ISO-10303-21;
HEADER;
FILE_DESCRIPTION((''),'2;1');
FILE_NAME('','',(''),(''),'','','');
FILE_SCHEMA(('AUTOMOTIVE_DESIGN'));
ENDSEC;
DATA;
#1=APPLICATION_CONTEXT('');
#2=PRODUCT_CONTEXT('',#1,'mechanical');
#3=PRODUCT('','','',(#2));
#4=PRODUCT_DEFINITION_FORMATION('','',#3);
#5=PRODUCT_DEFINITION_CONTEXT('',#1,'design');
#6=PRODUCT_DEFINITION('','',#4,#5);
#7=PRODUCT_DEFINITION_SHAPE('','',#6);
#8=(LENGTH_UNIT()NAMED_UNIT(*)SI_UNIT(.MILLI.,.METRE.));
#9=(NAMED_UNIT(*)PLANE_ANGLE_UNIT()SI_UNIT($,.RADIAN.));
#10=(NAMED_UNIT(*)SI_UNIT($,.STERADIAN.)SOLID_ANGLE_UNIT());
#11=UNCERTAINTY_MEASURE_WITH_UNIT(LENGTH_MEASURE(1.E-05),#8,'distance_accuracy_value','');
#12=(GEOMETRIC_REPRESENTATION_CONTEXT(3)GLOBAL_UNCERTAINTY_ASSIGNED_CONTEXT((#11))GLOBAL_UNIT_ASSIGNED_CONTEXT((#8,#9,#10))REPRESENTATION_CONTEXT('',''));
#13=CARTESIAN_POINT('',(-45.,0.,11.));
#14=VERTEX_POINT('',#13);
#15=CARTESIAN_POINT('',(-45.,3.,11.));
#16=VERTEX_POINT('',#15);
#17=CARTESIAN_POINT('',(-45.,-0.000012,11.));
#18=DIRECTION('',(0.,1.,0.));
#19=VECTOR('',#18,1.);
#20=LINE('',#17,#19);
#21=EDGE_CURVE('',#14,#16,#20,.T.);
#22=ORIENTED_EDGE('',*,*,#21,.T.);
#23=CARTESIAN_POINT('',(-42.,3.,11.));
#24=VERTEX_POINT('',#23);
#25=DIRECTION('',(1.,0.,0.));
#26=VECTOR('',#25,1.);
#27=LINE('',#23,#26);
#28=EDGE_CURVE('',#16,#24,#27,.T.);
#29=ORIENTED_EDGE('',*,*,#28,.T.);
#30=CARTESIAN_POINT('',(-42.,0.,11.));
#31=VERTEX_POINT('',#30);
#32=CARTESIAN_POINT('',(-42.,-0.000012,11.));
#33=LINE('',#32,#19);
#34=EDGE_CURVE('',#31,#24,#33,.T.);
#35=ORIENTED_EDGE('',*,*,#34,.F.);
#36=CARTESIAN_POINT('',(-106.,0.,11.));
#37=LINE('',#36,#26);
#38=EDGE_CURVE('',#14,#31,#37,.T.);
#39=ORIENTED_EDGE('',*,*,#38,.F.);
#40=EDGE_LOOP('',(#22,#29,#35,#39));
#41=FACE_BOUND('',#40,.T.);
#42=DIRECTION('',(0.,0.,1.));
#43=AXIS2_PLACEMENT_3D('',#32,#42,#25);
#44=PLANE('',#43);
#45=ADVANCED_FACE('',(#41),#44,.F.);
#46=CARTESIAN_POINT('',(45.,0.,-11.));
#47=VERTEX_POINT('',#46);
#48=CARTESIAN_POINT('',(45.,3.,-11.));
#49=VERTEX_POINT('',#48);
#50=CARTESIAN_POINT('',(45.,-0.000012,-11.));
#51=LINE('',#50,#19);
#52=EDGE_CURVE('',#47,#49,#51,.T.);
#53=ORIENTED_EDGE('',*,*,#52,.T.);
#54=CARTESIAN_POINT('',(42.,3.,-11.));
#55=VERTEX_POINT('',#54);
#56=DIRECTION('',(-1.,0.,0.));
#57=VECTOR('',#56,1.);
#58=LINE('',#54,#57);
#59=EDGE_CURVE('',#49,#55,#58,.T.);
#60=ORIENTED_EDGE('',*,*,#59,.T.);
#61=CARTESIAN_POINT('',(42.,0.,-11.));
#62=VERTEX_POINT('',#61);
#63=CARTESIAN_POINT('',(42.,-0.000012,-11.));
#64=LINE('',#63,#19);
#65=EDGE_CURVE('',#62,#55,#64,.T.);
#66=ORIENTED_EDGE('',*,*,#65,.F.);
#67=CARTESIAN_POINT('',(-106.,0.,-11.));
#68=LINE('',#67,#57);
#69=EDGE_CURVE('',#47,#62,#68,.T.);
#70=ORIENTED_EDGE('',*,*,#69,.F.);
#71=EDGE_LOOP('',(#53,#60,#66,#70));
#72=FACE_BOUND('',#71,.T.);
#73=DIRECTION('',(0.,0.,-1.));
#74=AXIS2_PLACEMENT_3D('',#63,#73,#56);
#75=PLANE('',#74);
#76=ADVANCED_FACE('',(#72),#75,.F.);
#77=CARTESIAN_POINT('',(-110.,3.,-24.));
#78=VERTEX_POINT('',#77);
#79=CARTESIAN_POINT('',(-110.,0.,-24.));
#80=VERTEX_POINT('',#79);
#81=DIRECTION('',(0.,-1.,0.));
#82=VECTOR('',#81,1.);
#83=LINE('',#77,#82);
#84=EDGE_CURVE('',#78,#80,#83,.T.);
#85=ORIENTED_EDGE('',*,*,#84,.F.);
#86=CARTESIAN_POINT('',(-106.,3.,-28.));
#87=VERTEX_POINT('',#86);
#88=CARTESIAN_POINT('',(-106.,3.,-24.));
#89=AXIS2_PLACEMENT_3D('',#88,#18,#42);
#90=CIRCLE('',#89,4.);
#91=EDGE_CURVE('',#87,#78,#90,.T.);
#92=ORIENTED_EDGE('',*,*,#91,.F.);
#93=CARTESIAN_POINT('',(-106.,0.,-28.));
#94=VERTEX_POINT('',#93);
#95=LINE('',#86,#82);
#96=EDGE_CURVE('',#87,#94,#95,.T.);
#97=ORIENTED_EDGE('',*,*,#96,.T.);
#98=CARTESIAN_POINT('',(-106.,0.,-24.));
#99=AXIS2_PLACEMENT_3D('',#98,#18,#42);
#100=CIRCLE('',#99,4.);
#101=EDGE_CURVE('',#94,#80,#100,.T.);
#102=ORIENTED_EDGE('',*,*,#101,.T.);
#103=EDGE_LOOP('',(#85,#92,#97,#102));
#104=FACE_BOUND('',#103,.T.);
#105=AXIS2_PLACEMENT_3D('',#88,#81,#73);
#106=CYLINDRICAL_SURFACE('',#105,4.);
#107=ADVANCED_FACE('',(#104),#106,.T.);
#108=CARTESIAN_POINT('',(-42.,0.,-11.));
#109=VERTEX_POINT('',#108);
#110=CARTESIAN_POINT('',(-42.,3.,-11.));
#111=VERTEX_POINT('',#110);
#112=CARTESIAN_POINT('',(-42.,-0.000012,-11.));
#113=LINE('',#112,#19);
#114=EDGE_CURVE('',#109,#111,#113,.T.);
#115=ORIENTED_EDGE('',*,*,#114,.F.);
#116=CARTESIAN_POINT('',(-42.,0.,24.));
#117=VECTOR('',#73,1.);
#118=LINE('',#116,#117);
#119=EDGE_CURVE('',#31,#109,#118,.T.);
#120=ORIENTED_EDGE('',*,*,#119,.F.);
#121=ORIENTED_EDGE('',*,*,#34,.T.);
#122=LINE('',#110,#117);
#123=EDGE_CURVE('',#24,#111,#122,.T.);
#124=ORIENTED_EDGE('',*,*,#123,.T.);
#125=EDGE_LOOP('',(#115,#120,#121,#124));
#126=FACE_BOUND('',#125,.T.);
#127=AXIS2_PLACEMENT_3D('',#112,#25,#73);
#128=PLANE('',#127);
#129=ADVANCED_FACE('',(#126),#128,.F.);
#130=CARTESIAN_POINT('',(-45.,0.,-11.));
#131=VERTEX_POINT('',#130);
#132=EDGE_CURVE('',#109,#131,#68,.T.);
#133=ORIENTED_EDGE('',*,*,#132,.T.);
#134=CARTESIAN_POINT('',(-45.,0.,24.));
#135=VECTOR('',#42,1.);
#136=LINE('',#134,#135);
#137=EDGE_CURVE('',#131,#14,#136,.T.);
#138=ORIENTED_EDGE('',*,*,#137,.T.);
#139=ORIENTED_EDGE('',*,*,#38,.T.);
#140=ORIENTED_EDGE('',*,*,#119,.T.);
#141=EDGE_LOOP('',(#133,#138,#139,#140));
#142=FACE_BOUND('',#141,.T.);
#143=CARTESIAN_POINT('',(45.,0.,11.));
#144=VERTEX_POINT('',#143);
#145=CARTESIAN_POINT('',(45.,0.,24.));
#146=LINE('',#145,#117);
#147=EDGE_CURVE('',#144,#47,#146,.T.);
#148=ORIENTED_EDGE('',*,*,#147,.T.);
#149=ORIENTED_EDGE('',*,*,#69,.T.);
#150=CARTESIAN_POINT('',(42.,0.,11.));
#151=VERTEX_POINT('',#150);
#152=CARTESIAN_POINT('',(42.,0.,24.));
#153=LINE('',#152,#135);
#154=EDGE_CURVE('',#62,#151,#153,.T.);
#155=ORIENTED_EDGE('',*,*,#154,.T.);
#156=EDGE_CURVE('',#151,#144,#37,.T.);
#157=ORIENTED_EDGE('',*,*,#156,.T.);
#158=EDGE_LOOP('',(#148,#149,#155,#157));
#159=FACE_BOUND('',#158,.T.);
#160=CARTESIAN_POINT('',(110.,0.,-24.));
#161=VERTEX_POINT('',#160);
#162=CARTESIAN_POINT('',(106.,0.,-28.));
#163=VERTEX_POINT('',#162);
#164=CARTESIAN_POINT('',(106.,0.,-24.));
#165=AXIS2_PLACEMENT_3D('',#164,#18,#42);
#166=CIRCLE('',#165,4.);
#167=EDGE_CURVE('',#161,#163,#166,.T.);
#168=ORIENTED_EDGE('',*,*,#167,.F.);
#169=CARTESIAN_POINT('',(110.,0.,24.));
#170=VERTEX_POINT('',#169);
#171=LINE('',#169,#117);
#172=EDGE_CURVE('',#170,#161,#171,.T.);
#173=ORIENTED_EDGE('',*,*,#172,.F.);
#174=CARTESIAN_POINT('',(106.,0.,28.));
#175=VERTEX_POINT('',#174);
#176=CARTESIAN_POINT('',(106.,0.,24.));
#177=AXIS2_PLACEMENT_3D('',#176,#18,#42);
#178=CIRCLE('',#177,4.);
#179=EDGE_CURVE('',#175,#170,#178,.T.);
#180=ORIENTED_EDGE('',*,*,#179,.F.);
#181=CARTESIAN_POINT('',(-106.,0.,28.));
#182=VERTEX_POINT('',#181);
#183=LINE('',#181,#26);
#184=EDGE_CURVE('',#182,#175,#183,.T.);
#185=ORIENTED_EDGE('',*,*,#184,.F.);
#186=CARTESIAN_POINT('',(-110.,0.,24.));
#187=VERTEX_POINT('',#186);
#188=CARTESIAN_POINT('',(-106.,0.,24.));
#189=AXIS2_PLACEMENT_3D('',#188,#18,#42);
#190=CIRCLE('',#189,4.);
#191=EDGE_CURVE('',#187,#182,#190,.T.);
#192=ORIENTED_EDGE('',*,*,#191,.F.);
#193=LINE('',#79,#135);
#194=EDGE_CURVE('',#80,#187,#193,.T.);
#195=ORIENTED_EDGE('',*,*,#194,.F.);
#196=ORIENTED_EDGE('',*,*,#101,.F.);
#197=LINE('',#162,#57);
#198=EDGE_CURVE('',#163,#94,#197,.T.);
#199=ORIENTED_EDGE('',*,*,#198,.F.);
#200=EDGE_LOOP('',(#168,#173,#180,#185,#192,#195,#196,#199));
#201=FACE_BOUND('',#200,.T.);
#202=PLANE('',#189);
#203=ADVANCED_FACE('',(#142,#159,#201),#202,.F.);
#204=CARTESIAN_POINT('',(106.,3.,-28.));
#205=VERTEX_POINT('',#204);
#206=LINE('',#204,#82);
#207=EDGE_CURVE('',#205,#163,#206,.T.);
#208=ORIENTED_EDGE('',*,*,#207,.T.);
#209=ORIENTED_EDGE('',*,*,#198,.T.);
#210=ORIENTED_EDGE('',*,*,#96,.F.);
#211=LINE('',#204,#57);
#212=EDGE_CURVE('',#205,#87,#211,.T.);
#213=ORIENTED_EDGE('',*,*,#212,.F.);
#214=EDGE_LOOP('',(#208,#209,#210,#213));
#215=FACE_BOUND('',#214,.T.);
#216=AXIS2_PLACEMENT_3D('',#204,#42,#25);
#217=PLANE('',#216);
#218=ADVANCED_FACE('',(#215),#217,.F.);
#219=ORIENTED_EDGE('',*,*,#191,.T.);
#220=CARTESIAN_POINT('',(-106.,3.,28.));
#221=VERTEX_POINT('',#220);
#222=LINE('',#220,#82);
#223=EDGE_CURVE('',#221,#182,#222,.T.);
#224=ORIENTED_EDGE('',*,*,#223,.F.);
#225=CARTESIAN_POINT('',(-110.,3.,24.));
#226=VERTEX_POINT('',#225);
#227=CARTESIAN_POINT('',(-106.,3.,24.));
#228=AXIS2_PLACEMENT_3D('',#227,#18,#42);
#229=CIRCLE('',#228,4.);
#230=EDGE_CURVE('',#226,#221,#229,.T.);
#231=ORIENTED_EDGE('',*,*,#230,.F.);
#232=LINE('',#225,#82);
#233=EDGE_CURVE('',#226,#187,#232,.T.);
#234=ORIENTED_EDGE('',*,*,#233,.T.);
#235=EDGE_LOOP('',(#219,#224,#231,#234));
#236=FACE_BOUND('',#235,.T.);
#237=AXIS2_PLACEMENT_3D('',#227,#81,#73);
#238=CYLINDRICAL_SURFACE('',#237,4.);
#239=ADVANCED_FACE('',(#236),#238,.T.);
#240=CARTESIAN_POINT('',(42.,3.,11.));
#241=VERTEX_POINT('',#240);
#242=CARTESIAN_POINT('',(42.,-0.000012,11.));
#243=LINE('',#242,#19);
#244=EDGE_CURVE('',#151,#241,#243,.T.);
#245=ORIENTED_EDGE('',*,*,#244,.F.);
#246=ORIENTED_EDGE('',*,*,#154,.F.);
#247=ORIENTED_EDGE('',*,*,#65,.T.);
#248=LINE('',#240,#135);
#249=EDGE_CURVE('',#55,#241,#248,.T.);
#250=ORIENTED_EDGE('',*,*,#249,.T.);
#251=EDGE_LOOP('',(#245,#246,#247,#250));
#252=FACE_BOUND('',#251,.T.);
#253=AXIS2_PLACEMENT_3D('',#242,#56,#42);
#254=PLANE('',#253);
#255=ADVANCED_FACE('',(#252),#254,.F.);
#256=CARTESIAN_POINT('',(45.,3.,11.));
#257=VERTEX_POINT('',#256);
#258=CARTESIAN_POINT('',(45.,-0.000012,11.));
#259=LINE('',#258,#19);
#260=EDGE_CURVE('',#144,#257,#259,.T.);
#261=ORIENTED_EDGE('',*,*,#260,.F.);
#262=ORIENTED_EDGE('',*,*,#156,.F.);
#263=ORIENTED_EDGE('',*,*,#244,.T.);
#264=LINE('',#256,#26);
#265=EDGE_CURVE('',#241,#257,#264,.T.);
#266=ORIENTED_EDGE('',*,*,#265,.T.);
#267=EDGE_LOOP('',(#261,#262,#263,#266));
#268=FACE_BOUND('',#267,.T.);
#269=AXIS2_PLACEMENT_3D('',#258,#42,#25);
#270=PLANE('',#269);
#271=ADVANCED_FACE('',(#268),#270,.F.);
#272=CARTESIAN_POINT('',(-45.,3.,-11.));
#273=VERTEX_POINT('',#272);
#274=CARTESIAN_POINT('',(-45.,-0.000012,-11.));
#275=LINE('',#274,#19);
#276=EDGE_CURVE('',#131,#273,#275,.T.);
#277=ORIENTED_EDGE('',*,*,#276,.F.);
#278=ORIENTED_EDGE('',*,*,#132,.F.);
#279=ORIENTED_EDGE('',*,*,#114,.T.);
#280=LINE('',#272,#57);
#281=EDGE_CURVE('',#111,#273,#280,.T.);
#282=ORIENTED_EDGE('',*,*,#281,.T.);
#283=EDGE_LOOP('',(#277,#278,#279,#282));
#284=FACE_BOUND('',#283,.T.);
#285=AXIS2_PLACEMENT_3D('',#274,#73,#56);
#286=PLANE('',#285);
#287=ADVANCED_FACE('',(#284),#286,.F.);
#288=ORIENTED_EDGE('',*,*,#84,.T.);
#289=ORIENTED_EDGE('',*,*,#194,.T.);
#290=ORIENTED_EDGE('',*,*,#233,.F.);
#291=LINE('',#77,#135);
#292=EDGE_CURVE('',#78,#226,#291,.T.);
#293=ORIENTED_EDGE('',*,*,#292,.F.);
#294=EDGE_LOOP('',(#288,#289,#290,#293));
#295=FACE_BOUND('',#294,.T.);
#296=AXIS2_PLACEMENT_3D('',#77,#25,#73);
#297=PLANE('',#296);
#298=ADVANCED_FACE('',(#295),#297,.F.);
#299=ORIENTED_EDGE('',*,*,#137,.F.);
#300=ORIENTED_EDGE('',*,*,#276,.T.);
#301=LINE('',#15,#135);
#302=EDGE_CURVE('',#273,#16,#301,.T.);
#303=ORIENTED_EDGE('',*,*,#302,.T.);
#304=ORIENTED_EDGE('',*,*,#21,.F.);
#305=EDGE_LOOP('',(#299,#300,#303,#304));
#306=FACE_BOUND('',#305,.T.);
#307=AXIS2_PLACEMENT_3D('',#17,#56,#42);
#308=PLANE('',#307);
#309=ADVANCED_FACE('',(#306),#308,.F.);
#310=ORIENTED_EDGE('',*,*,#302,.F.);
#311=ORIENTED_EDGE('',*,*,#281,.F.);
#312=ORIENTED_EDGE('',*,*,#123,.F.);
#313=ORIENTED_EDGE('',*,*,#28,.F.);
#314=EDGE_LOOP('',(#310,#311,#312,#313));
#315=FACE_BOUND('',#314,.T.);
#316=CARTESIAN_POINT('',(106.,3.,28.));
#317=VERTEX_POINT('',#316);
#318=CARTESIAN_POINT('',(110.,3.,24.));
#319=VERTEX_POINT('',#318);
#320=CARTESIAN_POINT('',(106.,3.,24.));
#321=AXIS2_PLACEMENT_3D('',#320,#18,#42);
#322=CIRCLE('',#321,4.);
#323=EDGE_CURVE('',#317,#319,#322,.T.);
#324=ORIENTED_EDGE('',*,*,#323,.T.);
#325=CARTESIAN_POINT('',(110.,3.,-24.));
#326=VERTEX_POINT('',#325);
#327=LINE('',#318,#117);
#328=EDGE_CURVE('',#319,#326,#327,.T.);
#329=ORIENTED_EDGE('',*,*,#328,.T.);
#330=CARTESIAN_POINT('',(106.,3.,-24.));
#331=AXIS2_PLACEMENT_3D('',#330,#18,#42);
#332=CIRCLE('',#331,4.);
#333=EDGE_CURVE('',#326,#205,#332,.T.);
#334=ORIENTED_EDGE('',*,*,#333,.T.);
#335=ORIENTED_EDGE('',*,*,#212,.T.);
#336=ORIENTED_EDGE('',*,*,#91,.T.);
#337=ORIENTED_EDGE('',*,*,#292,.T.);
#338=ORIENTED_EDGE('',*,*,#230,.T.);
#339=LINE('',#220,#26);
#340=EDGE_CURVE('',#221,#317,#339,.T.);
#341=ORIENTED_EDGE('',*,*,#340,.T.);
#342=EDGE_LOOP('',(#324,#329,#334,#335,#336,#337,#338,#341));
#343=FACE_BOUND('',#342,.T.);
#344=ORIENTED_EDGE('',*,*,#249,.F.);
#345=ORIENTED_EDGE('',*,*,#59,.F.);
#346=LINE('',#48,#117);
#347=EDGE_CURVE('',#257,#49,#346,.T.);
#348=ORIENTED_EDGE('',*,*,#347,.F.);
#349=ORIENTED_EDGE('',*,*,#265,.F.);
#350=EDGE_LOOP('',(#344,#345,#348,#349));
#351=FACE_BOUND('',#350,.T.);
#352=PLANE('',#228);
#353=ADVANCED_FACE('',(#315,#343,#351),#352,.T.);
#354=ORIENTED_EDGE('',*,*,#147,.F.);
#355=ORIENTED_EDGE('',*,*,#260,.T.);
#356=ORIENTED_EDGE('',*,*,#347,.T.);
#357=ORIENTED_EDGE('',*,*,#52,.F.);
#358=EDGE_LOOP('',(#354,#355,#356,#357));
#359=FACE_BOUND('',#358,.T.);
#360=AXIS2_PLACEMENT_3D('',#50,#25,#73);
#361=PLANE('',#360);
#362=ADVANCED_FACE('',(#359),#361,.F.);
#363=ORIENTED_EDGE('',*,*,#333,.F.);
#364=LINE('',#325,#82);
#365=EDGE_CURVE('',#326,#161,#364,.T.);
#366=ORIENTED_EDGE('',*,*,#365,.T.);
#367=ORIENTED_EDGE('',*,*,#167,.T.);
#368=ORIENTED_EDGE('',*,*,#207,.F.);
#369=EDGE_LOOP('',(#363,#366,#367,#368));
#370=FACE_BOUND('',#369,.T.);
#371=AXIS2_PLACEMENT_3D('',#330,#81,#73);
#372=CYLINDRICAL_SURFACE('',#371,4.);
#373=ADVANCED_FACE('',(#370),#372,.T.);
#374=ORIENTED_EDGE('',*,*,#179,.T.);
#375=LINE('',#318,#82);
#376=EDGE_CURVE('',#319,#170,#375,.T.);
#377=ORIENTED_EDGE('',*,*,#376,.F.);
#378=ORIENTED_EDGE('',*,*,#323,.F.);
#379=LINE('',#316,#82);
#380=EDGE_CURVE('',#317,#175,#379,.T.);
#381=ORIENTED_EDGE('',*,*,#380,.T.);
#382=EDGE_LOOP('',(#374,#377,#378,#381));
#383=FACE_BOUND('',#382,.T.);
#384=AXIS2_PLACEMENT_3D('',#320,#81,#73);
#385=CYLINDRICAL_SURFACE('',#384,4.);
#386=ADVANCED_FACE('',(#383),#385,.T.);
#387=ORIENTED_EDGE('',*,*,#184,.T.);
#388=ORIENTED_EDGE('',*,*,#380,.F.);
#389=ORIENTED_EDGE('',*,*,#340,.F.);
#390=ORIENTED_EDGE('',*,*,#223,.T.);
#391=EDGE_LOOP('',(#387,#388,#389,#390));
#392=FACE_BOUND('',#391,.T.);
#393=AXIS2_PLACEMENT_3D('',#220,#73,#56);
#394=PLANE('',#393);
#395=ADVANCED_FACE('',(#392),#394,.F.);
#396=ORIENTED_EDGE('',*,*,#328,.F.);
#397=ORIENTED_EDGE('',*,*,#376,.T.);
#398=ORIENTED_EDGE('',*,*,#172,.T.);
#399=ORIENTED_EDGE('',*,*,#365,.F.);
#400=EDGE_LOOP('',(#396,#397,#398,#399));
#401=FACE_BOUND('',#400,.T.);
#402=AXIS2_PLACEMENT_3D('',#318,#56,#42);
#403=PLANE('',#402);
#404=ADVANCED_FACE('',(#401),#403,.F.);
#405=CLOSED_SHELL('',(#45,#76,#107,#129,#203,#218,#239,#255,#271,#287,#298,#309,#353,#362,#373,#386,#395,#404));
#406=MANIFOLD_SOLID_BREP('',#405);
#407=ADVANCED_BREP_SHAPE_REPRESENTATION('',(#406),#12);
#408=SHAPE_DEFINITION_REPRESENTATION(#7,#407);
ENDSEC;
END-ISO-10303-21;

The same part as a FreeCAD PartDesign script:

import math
import FreeCAD as App
import Part
import Sketcher
Q = App.Units.Quantity

doc = App.newDocument("Part")
body = doc.addObject("PartDesign::Body", "Body")

sketch1 = body.newObject("Sketcher::SketchObject", "Sketch")
sketch1.AttachmentSupport = (doc.getObject("XZ_Plane"), [""])
sketch1.MapMode = "FlatFace"
sketch1.addGeometry([
    Part.LineSegment(App.Vector(-106, 28, 0), App.Vector(106, 28, 0)),
    Part.ArcOfCircle(Part.Circle(App.Vector(106, 24, 0), App.Vector(0, 0, 1), 4), math.radians(0), math.radians(90)),
    Part.LineSegment(App.Vector(110, 24, 0), App.Vector(110, -24, 0)),
    Part.ArcOfCircle(Part.Circle(App.Vector(106, -24, 0), App.Vector(0, 0, 1), 4), math.radians(-90), math.radians(0)),
    Part.LineSegment(App.Vector(106, -28, 0), App.Vector(-106, -28, 0)),
    Part.ArcOfCircle(Part.Circle(App.Vector(-106, -24, 0), App.Vector(0, 0, 1), 4), math.radians(180), math.radians(270)),
    Part.LineSegment(App.Vector(-110, -24, 0), App.Vector(-110, 24, 0)),
    Part.ArcOfCircle(Part.Circle(App.Vector(-106, 24, 0), App.Vector(0, 0, 1), 4), math.radians(90), math.radians(180)),
], False)
sketch1.addConstraint([
    Sketcher.Constraint("Tangent", 0, 2, 1, 2),
    Sketcher.Constraint("Tangent", 1, 1, 2, 1),
    Sketcher.Constraint("Tangent", 2, 2, 3, 2),
    Sketcher.Constraint("Tangent", 3, 1, 4, 1),
    Sketcher.Constraint("Tangent", 4, 2, 5, 2),
    Sketcher.Constraint("Tangent", 5, 1, 6, 1),
    Sketcher.Constraint("Tangent", 6, 2, 7, 2),
    Sketcher.Constraint("Tangent", 7, 1, 0, 1),
    Sketcher.Constraint("Horizontal", 0),
    Sketcher.Constraint("Vertical", 2),
    Sketcher.Constraint("Horizontal", 4),
    Sketcher.Constraint("Vertical", 6),
    Sketcher.Constraint("Equal", 1, 3),
    Sketcher.Constraint("Equal", 3, 5),
    Sketcher.Constraint("Equal", 5, 7),
    Sketcher.Constraint("Symmetric", 1, 3, 5, 3, -1, 1),
    Sketcher.Constraint("Radius", 1, Q("4 mm")),
    Sketcher.Constraint("DistanceX", 0, 1, 0, 2, Q("212 mm")),
    Sketcher.Constraint("DistanceY", 2, 2, 2, 1, Q("48 mm")),
])
pad1 = body.newObject("PartDesign::Pad", "Pad")
pad1.Profile = sketch1
pad1.Length = 3
pad1.Reversed = True

sketch2 = body.newObject("Sketcher::SketchObject", "Sketch001")
sketch2.AttachmentSupport = (doc.getObject("XZ_Plane"), [""])
sketch2.MapMode = "FlatFace"
sketch2.addGeometry([
    Part.LineSegment(App.Vector(-45, -11, 0), App.Vector(-45, 11, 0)),
    Part.LineSegment(App.Vector(-45, 11, 0), App.Vector(-42, 11, 0)),
    Part.LineSegment(App.Vector(-42, 11, 0), App.Vector(-42, -11, 0)),
    Part.LineSegment(App.Vector(-42, -11, 0), App.Vector(-45, -11, 0)),
    Part.LineSegment(App.Vector(42, -11, 0), App.Vector(42, 11, 0)),
    Part.LineSegment(App.Vector(42, 11, 0), App.Vector(45, 11, 0)),
    Part.LineSegment(App.Vector(45, 11, 0), App.Vector(45, -11, 0)),
    Part.LineSegment(App.Vector(45, -11, 0), App.Vector(42, -11, 0)),
], False)
sketch2.addConstraint([
    Sketcher.Constraint("Coincident", 0, 2, 1, 1),
    Sketcher.Constraint("Coincident", 1, 2, 2, 1),
    Sketcher.Constraint("Coincident", 2, 2, 3, 1),
    Sketcher.Constraint("Coincident", 3, 2, 0, 1),
    Sketcher.Constraint("Coincident", 4, 2, 5, 1),
    Sketcher.Constraint("Coincident", 5, 2, 6, 1),
    Sketcher.Constraint("Coincident", 6, 2, 7, 1),
    Sketcher.Constraint("Coincident", 7, 2, 4, 1),
    Sketcher.Constraint("Vertical", 0),
    Sketcher.Constraint("Horizontal", 1),
    Sketcher.Constraint("Vertical", 2),
    Sketcher.Constraint("Horizontal", 3),
    Sketcher.Constraint("Vertical", 4),
    Sketcher.Constraint("Horizontal", 5),
    Sketcher.Constraint("Vertical", 6),
    Sketcher.Constraint("Horizontal", 7),
    Sketcher.Constraint("Symmetric", 2, 2, 4, 2, -1, 1),
    Sketcher.Constraint("Symmetric", 0, 2, 6, 2, -1, 1),
    Sketcher.Constraint("Horizontal", 1, 2, 4, 2),
    Sketcher.Constraint("DistanceX", 1, 1, 1, 2, Q("3 mm")),
    Sketcher.Constraint("DistanceY", 0, 1, 0, 2, Q("22 mm")),
    Sketcher.Constraint("DistanceX", 0, 2, -1, 1, Q("45 mm")),
])
pocket1 = body.newObject("PartDesign::Pocket", "Pocket")
pocket1.Profile = sketch2
pocket1.Type = "ThroughAll"
pocket1.Midplane = True

doc.recompute()
